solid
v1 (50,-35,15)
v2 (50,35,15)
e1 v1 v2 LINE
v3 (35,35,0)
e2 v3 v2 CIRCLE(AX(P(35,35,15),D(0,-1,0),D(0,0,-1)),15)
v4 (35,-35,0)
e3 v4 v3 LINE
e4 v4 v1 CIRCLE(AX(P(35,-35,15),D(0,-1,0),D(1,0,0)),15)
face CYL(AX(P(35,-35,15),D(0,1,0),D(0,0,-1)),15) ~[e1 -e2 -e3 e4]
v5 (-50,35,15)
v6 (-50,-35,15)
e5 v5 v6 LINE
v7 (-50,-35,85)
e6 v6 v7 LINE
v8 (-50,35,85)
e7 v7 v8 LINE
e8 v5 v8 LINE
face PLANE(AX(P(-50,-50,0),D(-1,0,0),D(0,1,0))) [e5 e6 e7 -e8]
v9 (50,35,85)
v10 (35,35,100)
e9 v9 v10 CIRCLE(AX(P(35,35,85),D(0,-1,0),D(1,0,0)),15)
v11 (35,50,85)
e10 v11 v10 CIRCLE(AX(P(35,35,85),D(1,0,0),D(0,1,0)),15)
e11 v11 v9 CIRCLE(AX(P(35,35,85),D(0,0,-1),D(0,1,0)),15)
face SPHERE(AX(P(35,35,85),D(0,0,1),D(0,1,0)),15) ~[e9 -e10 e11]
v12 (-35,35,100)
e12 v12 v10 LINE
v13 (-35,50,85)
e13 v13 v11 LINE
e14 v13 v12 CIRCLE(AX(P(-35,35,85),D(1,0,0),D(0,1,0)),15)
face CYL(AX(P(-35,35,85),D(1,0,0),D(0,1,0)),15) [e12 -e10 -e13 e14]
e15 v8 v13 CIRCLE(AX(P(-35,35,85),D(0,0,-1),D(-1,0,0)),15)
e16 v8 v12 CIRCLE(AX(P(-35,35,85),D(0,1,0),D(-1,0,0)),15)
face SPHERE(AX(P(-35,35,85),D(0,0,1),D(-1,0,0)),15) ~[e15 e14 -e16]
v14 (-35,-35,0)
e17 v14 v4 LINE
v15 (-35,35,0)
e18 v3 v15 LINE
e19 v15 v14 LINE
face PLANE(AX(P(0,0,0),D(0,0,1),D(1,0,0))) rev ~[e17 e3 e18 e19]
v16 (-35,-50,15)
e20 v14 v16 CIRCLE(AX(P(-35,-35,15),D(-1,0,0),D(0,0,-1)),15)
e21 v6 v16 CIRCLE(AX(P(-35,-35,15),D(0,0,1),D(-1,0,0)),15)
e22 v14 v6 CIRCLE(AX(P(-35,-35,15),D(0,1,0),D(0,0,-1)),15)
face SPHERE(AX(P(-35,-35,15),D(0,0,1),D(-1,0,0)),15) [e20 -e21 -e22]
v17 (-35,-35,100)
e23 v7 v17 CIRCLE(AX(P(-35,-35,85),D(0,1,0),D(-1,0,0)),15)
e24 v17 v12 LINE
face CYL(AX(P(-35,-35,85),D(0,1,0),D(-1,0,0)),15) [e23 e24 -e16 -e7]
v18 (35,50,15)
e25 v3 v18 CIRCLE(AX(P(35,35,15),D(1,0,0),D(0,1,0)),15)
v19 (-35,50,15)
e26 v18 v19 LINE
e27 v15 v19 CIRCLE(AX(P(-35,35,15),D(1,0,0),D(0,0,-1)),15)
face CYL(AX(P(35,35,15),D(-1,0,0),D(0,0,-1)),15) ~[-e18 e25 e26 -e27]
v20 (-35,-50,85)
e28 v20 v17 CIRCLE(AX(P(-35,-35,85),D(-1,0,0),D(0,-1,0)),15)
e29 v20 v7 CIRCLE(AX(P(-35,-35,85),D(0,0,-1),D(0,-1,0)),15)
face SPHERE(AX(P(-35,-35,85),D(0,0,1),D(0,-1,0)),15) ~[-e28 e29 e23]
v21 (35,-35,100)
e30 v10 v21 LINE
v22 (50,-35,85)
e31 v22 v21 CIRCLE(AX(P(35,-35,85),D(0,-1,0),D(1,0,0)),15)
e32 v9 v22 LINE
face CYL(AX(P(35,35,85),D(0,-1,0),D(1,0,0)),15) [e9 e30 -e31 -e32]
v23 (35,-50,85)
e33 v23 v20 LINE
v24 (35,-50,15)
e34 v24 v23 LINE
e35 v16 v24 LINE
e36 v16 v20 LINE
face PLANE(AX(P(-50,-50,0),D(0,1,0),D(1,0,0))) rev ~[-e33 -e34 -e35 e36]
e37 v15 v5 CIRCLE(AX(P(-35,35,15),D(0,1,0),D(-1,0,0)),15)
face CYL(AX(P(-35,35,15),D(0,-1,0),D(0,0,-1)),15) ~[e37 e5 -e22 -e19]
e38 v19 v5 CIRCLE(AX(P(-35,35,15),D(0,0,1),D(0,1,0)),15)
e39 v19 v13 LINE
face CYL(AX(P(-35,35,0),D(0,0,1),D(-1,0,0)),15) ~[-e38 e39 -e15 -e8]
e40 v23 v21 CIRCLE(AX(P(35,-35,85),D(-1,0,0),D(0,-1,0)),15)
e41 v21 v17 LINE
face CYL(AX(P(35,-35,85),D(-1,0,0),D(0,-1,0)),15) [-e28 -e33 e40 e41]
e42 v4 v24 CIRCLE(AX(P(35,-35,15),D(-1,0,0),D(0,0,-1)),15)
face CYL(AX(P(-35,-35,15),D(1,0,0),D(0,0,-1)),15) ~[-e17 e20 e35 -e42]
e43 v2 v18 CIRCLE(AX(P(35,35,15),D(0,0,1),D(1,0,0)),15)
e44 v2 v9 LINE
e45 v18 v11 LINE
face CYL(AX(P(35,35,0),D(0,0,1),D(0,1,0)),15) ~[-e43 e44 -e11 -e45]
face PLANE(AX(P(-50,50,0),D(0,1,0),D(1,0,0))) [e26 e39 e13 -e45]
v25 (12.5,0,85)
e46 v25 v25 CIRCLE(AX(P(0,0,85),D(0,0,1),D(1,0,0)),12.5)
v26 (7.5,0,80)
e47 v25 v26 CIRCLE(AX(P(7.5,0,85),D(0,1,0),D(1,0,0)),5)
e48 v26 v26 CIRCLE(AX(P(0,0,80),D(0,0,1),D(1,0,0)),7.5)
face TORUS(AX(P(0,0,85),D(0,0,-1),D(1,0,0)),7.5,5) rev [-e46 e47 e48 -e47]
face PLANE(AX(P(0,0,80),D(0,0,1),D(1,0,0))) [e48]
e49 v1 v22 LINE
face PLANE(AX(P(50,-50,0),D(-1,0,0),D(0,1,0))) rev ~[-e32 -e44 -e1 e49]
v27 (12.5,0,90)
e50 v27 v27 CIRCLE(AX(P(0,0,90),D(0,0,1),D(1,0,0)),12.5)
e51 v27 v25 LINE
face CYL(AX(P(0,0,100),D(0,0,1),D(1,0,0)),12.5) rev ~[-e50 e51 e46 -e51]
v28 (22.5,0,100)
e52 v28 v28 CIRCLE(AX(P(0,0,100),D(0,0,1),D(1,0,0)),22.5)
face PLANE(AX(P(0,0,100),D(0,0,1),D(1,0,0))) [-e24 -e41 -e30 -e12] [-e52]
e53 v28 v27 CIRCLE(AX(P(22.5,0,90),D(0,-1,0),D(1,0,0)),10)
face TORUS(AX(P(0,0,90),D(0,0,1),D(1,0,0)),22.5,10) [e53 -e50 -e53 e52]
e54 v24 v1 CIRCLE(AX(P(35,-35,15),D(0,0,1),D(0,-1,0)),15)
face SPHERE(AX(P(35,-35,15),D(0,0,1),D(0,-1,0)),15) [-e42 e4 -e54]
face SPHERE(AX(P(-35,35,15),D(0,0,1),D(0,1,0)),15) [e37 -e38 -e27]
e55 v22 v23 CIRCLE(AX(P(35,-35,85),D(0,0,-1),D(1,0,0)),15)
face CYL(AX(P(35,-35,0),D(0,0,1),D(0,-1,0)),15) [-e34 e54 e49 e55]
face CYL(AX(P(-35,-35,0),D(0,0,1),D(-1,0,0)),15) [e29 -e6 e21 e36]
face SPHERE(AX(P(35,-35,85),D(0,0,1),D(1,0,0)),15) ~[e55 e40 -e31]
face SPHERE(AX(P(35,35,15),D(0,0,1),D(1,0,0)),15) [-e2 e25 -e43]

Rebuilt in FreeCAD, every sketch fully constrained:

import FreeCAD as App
import Part
import Sketcher
Q = App.Units.Quantity


def edges_at(feature, points):
    """Names of the edges that pass closest to the given points."""
    edges = feature.Shape.Edges
    near = lambda p: min(range(len(edges)), key=lambda i: edges[i].distToShape(Part.Vertex(*p))[0])
    return sorted({f"Edge{near(p) + 1}" for p in points})


def add_polygon(sketch, points):
    """Adds a closed chain of lines whose ends are joined by coincident constraints."""
    first, n = sketch.GeometryCount, len(points)
    for a, b in zip(points, points[1:] + points[:1]):
        sketch.addGeometry(Part.LineSegment(App.Vector(*a, 0), App.Vector(*b, 0)), False)
    for i in range(n):
        sketch.addConstraint(Sketcher.Constraint("Coincident", first + i, 2, first + (i + 1) % n, 1))

doc = App.newDocument("Part")
body = doc.addObject("PartDesign::Body", "Body")

# Sketch on XY plane
sketch1 = body.newObject("Sketcher::SketchObject", "Sketch")
sketch1.AttachmentSupport = (doc.getObject("XY_Plane"), [""])
sketch1.MapMode = "FlatFace"
add_polygon(sketch1, [(-50, 50), (-50, -50), (50, -50), (50, 50)])  # lines 0-3
sketch1.addConstraint([
    Sketcher.Constraint("Vertical", 0),
    Sketcher.Constraint("Horizontal", 1),
    Sketcher.Constraint("Vertical", 2),
    Sketcher.Constraint("Horizontal", 3),
    Sketcher.Constraint("Symmetric", 0, 2, 2, 2, -1, 1),
    Sketcher.Constraint("Equal", 3, 0),
    Sketcher.Constraint("DistanceX", 1, 1, 1, 2, Q("100 mm")),
])
pad1 = body.newObject("PartDesign::Pad", "Pad")
pad1.Profile = sketch1
pad1.Length = 100

# Sketch on XY plane
sketch2 = body.newObject("Sketcher::SketchObject", "Sketch001")
sketch2.AttachmentSupport = (doc.getObject("XY_Plane"), [""])
sketch2.MapMode = "FlatFace"
sketch2.AttachmentOffset = App.Placement(App.Vector(0, 0, 100), App.Rotation())
sketch2.addGeometry(Part.Circle(App.Vector(0, 0, 0), App.Vector(0, 0, 1), 12.5), False)
sketch2.addConstraint([
    Sketcher.Constraint("Coincident", 0, 3, -1, 1),
    Sketcher.Constraint("Diameter", 0, Q("25 mm")),
])
pocket1 = body.newObject("PartDesign::Pocket", "Pocket")
pocket1.Profile = sketch2
pocket1.Length = 20
doc.recompute()

fillet = body.newObject("PartDesign::Fillet", "Fillet")
fillet.Base = (pocket1, edges_at(pocket1, [
    (50, -50, 50),
    (-50, -50, 50),
    (50, 50, 50),
    (-50, 50, 50),
]))
fillet.Radius = 15
doc.recompute()

fillet2 = body.newObject("PartDesign::Fillet", "Fillet001")
fillet2.Base = (fillet, edges_at(fillet, [
    (-50, 0, 100),
    (-45.607, 45.607, 100),
    (0, 50, 100),
    (45.607, 45.607, 100),
    (50, 0, 100),
    (45.607, -45.607, 100),
    (0, -50, 100),
    (-45.607, -45.607, 100),
]))
fillet2.Radius = 15
doc.recompute()

fillet3 = body.newObject("PartDesign::Fillet", "Fillet002")
fillet3.Base = (fillet2, edges_at(fillet2, [
    (0, -50, 0),
    (-45.607, -45.607, 0),
    (-50, 0, 0),
    (-45.607, 45.607, 0),
    (0, 50, 0),
    (45.607, 45.607, 0),
    (50, 0, 0),
    (45.607, -45.607, 0),
]))
fillet3.Radius = 15
doc.recompute()

fillet4 = body.newObject("PartDesign::Fillet", "Fillet003")
fillet4.Base = (fillet3, edges_at(fillet3, [(-12.5, 0, 100)]))
fillet4.Radius = 10
doc.recompute()

fillet5 = body.newObject("PartDesign::Fillet", "Fillet004")
fillet5.Base = (fillet4, edges_at(fillet4, [(-12.5, 0, 80)]))
fillet5.Radius = 5

doc.recompute()
